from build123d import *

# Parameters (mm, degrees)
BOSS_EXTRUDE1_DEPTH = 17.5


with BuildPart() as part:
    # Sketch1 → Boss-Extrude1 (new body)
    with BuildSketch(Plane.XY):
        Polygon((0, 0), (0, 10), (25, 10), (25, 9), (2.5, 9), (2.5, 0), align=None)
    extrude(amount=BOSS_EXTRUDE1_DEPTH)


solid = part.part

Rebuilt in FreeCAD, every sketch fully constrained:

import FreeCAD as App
import Part
import Sketcher
Q = App.Units.Quantity


def add_polygon(sketch, points):
    """Adds a closed chain of lines whose ends are joined by coincident constraints."""
    first, n = sketch.GeometryCount, len(points)
    for a, b in zip(points, points[1:] + points[:1]):
        sketch.addGeometry(Part.LineSegment(App.Vector(*a, 0), App.Vector(*b, 0)), False)
    for i in range(n):
        sketch.addConstraint(Sketcher.Constraint("Coincident", first + i, 2, first + (i + 1) % n, 1))

doc = App.newDocument("Part")
body = doc.addObject("PartDesign::Body", "Body")

sketch1 = body.newObject("Sketcher::SketchObject", "Sketch")
sketch1.AttachmentSupport = (doc.getObject("XY_Plane"), [""])
sketch1.MapMode = "FlatFace"
add_polygon(sketch1, [(0, 10), (0, 0), (2.5, 0), (2.5, 9), (25, 9), (25, 10)])
sketch1.addConstraint(Sketcher.Constraint("Vertical", 0))
sketch1.addConstraint(Sketcher.Constraint("Horizontal", 1))
sketch1.addConstraint(Sketcher.Constraint("Vertical", 2))
sketch1.addConstraint(Sketcher.Constraint("Horizontal", 3))
sketch1.addConstraint(Sketcher.Constraint("Vertical", 4))
sketch1.addConstraint(Sketcher.Constraint("Horizontal", 5))
sketch1.addConstraint(Sketcher.Constraint("Coincident", 0, 2, -1, 1))
sketch1.addConstraint(Sketcher.Constraint("DistanceX", 5, 2, 5, 1, Q("25 mm")))
sketch1.addConstraint(Sketcher.Constraint("DistanceY", 0, 2, 0, 1, Q("10 mm")))
sketch1.addConstraint(Sketcher.Constraint("DistanceY", 2, 1, 2, 2, Q("9 mm")))
sketch1.addConstraint(Sketcher.Constraint("DistanceX", 1, 1, 1, 2, Q("2.5 mm")))
pad1 = body.newObject("PartDesign::Pad", "Pad")
pad1.Profile = sketch1
pad1.Length = 17.5

doc.recompute()
